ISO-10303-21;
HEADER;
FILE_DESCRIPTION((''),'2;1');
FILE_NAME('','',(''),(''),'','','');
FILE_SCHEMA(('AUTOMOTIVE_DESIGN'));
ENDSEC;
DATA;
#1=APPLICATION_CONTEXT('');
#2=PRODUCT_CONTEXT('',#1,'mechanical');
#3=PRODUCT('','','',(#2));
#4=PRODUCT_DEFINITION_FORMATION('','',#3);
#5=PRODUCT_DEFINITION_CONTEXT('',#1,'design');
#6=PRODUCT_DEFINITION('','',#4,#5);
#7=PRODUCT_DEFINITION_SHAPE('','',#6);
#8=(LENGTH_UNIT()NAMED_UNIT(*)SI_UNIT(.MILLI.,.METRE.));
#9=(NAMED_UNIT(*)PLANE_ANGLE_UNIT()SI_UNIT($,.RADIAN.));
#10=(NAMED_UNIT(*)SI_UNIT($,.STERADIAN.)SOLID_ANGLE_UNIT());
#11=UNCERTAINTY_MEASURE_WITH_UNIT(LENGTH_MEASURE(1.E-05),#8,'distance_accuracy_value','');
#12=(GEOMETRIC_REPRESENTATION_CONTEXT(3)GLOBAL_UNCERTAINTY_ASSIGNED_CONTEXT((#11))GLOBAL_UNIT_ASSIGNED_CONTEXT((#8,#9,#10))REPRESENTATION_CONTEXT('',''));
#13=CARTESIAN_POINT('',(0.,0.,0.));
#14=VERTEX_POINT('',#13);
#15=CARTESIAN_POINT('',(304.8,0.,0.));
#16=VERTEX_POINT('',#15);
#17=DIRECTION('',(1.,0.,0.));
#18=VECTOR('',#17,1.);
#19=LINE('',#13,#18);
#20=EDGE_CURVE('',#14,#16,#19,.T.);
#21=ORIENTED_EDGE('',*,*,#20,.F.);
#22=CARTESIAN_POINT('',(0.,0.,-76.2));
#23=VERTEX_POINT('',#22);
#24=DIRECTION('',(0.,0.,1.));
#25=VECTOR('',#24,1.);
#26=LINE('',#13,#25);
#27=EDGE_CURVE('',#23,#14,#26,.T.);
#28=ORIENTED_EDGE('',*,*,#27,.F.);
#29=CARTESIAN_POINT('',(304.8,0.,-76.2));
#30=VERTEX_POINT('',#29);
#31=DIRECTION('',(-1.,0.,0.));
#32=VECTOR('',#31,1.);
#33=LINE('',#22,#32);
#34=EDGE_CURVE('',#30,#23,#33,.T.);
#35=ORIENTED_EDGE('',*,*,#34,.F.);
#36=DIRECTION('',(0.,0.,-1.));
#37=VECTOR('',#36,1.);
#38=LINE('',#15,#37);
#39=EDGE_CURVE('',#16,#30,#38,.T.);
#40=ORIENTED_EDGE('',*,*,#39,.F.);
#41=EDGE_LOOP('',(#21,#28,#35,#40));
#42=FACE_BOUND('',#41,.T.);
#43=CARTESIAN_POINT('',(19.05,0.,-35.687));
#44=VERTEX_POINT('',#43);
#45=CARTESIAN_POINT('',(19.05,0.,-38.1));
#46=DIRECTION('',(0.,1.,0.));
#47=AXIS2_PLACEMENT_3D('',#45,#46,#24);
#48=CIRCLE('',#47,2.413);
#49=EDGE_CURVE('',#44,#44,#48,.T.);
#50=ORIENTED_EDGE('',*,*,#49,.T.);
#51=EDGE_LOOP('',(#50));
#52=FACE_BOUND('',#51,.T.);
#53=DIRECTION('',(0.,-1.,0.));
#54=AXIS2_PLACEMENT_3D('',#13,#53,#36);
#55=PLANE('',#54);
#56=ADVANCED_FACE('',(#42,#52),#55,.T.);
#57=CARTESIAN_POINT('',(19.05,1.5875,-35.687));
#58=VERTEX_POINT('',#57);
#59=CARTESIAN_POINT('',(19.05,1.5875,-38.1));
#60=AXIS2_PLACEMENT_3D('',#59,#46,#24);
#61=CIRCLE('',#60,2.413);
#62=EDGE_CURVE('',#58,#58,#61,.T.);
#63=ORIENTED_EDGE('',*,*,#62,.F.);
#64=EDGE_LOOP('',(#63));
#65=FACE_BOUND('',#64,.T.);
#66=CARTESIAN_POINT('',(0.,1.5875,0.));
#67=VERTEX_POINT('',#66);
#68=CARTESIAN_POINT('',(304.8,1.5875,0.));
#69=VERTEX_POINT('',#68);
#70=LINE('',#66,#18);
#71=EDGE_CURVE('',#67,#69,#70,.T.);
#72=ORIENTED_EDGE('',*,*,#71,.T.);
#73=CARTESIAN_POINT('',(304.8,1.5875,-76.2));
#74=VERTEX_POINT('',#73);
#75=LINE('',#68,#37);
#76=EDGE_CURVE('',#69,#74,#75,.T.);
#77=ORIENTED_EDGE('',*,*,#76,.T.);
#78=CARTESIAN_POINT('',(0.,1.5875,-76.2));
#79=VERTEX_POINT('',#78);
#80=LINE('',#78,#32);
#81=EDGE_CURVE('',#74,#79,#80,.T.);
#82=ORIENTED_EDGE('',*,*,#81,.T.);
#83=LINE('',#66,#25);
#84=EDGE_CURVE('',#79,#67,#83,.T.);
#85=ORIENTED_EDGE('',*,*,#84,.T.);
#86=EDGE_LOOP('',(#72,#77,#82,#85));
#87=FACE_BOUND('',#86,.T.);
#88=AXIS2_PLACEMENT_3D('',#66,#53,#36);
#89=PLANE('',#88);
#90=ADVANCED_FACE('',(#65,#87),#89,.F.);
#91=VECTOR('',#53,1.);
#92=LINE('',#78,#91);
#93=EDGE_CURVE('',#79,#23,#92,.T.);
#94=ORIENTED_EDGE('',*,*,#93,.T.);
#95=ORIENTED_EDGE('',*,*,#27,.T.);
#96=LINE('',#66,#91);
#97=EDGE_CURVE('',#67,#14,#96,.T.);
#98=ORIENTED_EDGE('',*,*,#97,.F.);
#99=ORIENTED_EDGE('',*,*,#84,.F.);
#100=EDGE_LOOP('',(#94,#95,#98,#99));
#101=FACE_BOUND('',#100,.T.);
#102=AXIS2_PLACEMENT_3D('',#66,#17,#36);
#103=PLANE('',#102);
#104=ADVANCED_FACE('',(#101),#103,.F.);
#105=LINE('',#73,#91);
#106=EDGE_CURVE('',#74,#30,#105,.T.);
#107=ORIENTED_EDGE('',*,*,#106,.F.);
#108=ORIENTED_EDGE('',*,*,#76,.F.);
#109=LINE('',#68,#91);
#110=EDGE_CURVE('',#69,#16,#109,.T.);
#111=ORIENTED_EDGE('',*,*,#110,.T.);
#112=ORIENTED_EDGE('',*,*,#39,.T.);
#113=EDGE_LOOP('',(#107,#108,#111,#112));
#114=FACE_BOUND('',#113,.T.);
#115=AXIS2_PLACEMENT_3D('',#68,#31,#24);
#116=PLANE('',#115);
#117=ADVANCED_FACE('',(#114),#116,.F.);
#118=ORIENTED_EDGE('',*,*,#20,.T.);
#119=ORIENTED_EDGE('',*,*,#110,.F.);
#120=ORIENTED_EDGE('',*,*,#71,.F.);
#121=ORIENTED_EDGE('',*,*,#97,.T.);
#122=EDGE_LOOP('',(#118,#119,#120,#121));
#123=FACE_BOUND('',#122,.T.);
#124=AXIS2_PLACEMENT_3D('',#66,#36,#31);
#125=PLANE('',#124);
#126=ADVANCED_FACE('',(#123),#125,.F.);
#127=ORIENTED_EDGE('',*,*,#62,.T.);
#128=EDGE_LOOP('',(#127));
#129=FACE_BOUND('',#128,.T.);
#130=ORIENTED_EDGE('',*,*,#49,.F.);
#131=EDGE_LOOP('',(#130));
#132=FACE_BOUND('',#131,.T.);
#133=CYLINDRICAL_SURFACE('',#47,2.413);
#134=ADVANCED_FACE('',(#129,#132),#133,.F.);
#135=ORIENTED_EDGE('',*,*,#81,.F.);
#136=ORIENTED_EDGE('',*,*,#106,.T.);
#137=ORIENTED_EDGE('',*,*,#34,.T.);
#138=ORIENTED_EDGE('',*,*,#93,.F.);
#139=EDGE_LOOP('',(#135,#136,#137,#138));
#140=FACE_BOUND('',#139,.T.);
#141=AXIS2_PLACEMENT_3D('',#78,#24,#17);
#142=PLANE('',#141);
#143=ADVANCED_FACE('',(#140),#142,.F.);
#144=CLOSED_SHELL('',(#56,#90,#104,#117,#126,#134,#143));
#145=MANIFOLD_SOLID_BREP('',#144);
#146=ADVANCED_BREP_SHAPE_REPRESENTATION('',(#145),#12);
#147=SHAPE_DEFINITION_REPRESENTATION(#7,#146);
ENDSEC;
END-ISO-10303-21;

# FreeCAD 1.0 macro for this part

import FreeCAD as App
import Part
import Sketcher
Q = App.Units.Quantity

doc = App.newDocument("Part")
params = doc.addObject("Spreadsheet::Sheet", "Params")
for row, (alias, value) in enumerate([
    ("sketch1_width", "12 in"),
    ("sketch1_height", "3 in"),
    ("pad1_length", "0.0625 in"),
    ("sketch2_diameter", "0.19 in"),
], start=1):
    params.set(f"A{row}", alias)
    params.set(f"B{row}", "=" + value)
    params.setAlias(f"B{row}", alias)

body = doc.addObject("PartDesign::Body", "Body")

sketch1 = body.newObject("Sketcher::SketchObject", "Sketch")
sketch1.AttachmentSupport = (doc.getObject("XZ_Plane"), [""])
sketch1.MapMode = "FlatFace"
sketch1.addGeometry(Part.LineSegment(App.Vector(0, -76, 0), App.Vector(0, 0, 0)), False)
sketch1.addGeometry(Part.LineSegment(App.Vector(0, 0, 0), App.Vector(305, 0, 0)), False)
sketch1.addGeometry(Part.LineSegment(App.Vector(305, 0, 0), App.Vector(305, -76, 0)), False)
sketch1.addGeometry(Part.LineSegment(App.Vector(305, -76, 0), App.Vector(0, -76, 0)), False)
sketch1.addConstraint(Sketcher.Constraint("Coincident", 0, 2, 1, 1))
sketch1.addConstraint(Sketcher.Constraint("Coincident", 1, 2, 2, 1))
sketch1.addConstraint(Sketcher.Constraint("Coincident", 2, 2, 3, 1))
sketch1.addConstraint(Sketcher.Constraint("Coincident", 3, 2, 0, 1))
sketch1.addConstraint(Sketcher.Constraint("Vertical", 0))
sketch1.addConstraint(Sketcher.Constraint("Horizontal", 1))
sketch1.addConstraint(Sketcher.Constraint("Vertical", 2))
sketch1.addConstraint(Sketcher.Constraint("Horizontal", 3))
sketch1.addConstraint(Sketcher.Constraint("Coincident", 0, 2, -1, 1))
sketch1.addConstraint(Sketcher.Constraint("DistanceX", 1, 1, 1, 2, Q("12 in")))
sketch1.addConstraint(Sketcher.Constraint("DistanceY", 0, 1, 0, 2, Q("3 in")))
sketch1.setExpression("Constraints[9]", "Params.sketch1_width")
sketch1.setExpression("Constraints[10]", "Params.sketch1_height")
pad1 = body.newObject("PartDesign::Pad", "Pad")
pad1.Profile = sketch1
pad1.setExpression("Length", "Params.pad1_length")
pad1.Reversed = True

sketch2 = body.newObject("Sketcher::SketchObject", "Sketch001")
sketch2.AttachmentSupport = (doc.getObject("XZ_Plane"), [""])
sketch2.MapMode = "FlatFace"
sketch2.AttachmentOffset = App.Placement(App.Vector(0, 0, -0.0625 * 25.4), App.Rotation())
sketch2.addGeometry(Part.Circle(App.Vector(19.1, -38.1, 0), App.Vector(0, 0, 1), 2.4), False)
sketch2.addConstraint(Sketcher.Constraint("Diameter", 0, Q("0.19 in")))
sketch2.addConstraint(Sketcher.Constraint("DistanceY", 0, 3, -1, 1, Q("1.5 in")))
sketch2.addConstraint(Sketcher.Constraint("DistanceX", -1, 1, 0, 3, Q("0.75 in")))
sketch2.setExpression("Constraints[0]", "Params.sketch2_diameter")
pocket1 = body.newObject("PartDesign::Pocket", "Pocket")
pocket1.Profile = sketch2
pocket1.Type = "ThroughAll"
pocket1.Reversed = True

doc.recompute()
